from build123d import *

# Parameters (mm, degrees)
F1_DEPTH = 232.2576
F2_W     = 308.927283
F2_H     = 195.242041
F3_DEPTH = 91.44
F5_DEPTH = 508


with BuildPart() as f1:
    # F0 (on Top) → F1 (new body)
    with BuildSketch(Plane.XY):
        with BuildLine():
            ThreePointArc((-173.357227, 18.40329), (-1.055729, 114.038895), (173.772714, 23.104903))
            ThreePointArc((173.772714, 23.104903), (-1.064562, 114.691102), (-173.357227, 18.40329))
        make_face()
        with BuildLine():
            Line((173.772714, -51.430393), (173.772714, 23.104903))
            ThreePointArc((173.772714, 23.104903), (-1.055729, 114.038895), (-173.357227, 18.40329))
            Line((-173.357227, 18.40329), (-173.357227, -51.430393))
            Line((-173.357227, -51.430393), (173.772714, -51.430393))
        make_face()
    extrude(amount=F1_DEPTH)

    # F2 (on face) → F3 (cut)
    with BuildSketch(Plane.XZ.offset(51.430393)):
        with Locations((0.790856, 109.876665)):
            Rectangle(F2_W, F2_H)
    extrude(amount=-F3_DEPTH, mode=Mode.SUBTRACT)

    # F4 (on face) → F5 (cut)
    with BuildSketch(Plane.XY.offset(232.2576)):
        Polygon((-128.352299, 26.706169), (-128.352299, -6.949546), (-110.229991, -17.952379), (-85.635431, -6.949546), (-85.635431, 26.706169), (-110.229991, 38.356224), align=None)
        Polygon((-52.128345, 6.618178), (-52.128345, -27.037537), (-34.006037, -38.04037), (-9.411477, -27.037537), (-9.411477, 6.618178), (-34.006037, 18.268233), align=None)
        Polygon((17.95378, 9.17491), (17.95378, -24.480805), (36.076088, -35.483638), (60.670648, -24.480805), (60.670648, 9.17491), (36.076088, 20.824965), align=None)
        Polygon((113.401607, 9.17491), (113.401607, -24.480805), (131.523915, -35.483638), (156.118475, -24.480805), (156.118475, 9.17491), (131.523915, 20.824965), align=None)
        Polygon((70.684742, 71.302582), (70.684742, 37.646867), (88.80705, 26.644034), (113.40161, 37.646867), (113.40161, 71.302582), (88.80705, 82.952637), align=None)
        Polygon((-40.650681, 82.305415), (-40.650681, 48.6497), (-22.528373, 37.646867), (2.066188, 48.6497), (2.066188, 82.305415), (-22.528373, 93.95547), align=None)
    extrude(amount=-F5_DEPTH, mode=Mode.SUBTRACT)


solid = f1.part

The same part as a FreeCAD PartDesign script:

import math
import FreeCAD as App
import Part
import Sketcher

V = App.Vector
Q = App.Units.Quantity


def add_polygon(sketch, points):
    """Adds a closed chain of lines whose ends are joined by coincident constraints."""
    first, n = sketch.GeometryCount, len(points)
    for a, b in zip(points, points[1:] + points[:1]):
        sketch.addGeometry(Part.LineSegment(App.Vector(*a, 0), App.Vector(*b, 0)), False)
    for i in range(n):
        sketch.addConstraint(Sketcher.Constraint("Coincident", first + i, 2, first + (i + 1) % n, 1))

doc = App.newDocument("Part")
params = doc.addObject("Spreadsheet::Sheet", "Params")
for row, (alias, value) in enumerate([
    ("pad1_length", "9.144 in"),
    ("pocket1_length", "3.6 in"),
    ("pocket2_length", "20 in"),
], start=1):
    params.set(f"A{row}", alias)
    params.set(f"B{row}", "=" + value)
    params.setAlias(f"B{row}", alias)

body = doc.addObject("PartDesign::Body", "Body")

# Sketch on XY plane
sketch1 = body.newObject("Sketcher::SketchObject", "Sketch")
sketch1.AttachmentSupport = (doc.getObject("XY_Plane"), [""])
sketch1.MapMode = "FlatFace"
sketch1.addGeometry([
    Part.ArcOfCircle(Part.Circle(V(2, -93, 0), V(0, 0, 1), 207), math.radians(34), math.radians(148)),
    Part.LineSegment(V(-173, 18, 0), V(-173, -51, 0)),
    Part.LineSegment(V(-173, -51, 0), V(174, -51, 0)),
    Part.LineSegment(V(174, -51, 0), V(174, 23, 0)),
], False)
sketch1.addConstraint([
    Sketcher.Constraint("Coincident", 0, 2, 1, 1),
    Sketcher.Constraint("Coincident", 1, 2, 2, 1),
    Sketcher.Constraint("Coincident", 2, 2, 3, 1),
    Sketcher.Constraint("Coincident", 3, 2, 0, 1),
    Sketcher.Constraint("Vertical", 1),
    Sketcher.Constraint("Horizontal", 2),
    Sketcher.Constraint("Vertical", 3),
    Sketcher.Constraint("Radius", 0, 207.333266),
    Sketcher.Constraint("DistanceX", 2, 1, 2, 2, 347.129941),
    Sketcher.Constraint("DistanceY", 1, 2, 1, 1, 69.833683),
    Sketcher.Constraint("DistanceY", 3, 1, 3, 2, 74.535296),
    Sketcher.Constraint("DistanceY", 0, 3, -1, 1, 92.62315),
    Sketcher.Constraint("DistanceX", -1, 1, 0, 3, 1.743353),
])
pad1 = body.newObject("PartDesign::Pad", "Pad")
pad1.Profile = sketch1
pad1.setExpression("Length", "Params.pad1_length")

# Sketch on XZ plane
sketch2 = body.newObject("Sketcher::SketchObject", "Sketch001")
sketch2.AttachmentSupport = (doc.getObject("XZ_Plane"), [""])
sketch2.MapMode = "FlatFace"
sketch2.AttachmentOffset = App.Placement(V(0, 0, 51.430393), App.Rotation())
add_polygon(sketch2, [(-154, 207), (-154, 12), (155, 12), (155, 207)])  # lines 0-3
sketch2.addConstraint([
    Sketcher.Constraint("Vertical", 0),
    Sketcher.Constraint("Horizontal", 1),
    Sketcher.Constraint("Vertical", 2),
    Sketcher.Constraint("Horizontal", 3),
    Sketcher.Constraint("DistanceY", 0, 2, 0, 1, 195.242041),
    Sketcher.Constraint("DistanceX", 1, 1, 1, 2, 308.927283),
    Sketcher.Constraint("DistanceX", 0, 2, -1, 1, 153.672786),
    Sketcher.Constraint("DistanceY", -1, 1, 0, 2, 12.255645),
])
pocket1 = body.newObject("PartDesign::Pocket", "Pocket")
pocket1.Profile = sketch2
pocket1.setExpression("Length", "Params.pocket1_length")

# Sketch on XY plane
sketch3 = body.newObject("Sketcher::SketchObject", "Sketch002")
sketch3.AttachmentSupport = (doc.getObject("XY_Plane"), [""])
sketch3.MapMode = "FlatFace"
sketch3.AttachmentOffset = App.Placement(V(0, 0, 9.144 * 25.4), App.Rotation())
add_polygon(sketch3, [(-128, 27), (-128, -7), (-110, -18), (-86, -7), (-86, 27), (-110, 38)])  # lines 0-5
add_polygon(sketch3, [(-52, 7), (-52, -27), (-34, -38), (-9, -27), (-9, 7), (-34, 18)])  # lines 6-11
add_polygon(sketch3, [(18, 9), (18, -24), (36, -35), (61, -24), (61, 9), (36, 21)])  # lines 12-17
add_polygon(sketch3, [(113, 9), (113, -24), (132, -35), (156, -24), (156, 9), (132, 21)])  # lines 18-23
add_polygon(sketch3, [(71, 71), (71, 38), (89, 27), (113, 38), (113, 71), (89, 83)])  # lines 24-29
add_polygon(sketch3, [(-41, 82), (-41, 49), (-23, 38), (2, 49), (2, 82), (-23, 94)])  # lines 30-35
sketch3.addConstraint([
    Sketcher.Constraint("Vertical", 0),
    Sketcher.Constraint("Vertical", 3),
    Sketcher.Constraint("Vertical", 6),
    Sketcher.Constraint("Vertical", 9),
    Sketcher.Constraint("Vertical", 12),
    Sketcher.Constraint("Vertical", 15),
    Sketcher.Constraint("Vertical", 18),
    Sketcher.Constraint("Vertical", 21),
    Sketcher.Constraint("Vertical", 24),
    Sketcher.Constraint("Vertical", 27),
    Sketcher.Constraint("Vertical", 30),
    Sketcher.Constraint("Vertical", 33),
    Sketcher.Constraint("Parallel", 1, 7),
    Sketcher.Constraint("Parallel", 2, 8),
    Sketcher.Constraint("Parallel", 4, 10),
    Sketcher.Constraint("Parallel", 5, 11),
    Sketcher.Constraint("Parallel", 7, 13),
    Sketcher.Constraint("Parallel", 8, 14),
    Sketcher.Constraint("Parallel", 10, 16),
    Sketcher.Constraint("Parallel", 11, 17),
    Sketcher.Constraint("Parallel", 13, 19),
    Sketcher.Constraint("Parallel", 14, 20),
    Sketcher.Constraint("Parallel", 16, 22),
    Sketcher.Constraint("Parallel", 17, 23),
    Sketcher.Constraint("Parallel", 19, 25),
    Sketcher.Constraint("Parallel", 20, 26),
    Sketcher.Constraint("Parallel", 22, 28),
    Sketcher.Constraint("Parallel", 23, 29),
    Sketcher.Constraint("Parallel", 25, 31),
    Sketcher.Constraint("Parallel", 26, 32),
    Sketcher.Constraint("Parallel", 28, 34),
    Sketcher.Constraint("Parallel", 29, 35),
    Sketcher.Constraint("Horizontal", 0, 2, 2, 2),
    Sketcher.Constraint("Horizontal", 3, 2, 5, 2),
    Sketcher.Constraint("Horizontal", 6, 2, 8, 2),
    Sketcher.Constraint("Horizontal", 9, 2, 11, 2),
    Sketcher.Constraint("Horizontal", 12, 2, 14, 2),
    Sketcher.Constraint("Horizontal", 15, 2, 17, 2),
    Sketcher.Constraint("Horizontal", 14, 2, 18, 2),
    Sketcher.Constraint("Horizontal", 13, 2, 19, 2),
    Sketcher.Constraint("Horizontal", 18, 2, 20, 2),
    Sketcher.Constraint("Horizontal", 17, 2, 21, 2),
    Sketcher.Constraint("Horizontal", 16, 2, 22, 2),
    Sketcher.Constraint("Horizontal", 24, 2, 26, 2),
    Sketcher.Constraint("Horizontal", 27, 2, 29, 2),
    Sketcher.Constraint("Horizontal", 26, 2, 31, 2),
    Sketcher.Constraint("Horizontal", 30, 2, 32, 2),
    Sketcher.Constraint("Horizontal", 33, 2, 35, 2),
    Sketcher.Constraint("Vertical", 1, 2, 4, 2),
    Sketcher.Constraint("Equal", 3, 6),
    Sketcher.Constraint("Equal", 9, 12),
    Sketcher.Constraint("Equal", 21, 24),
    Sketcher.Constraint("Equal", 27, 30),
    Sketcher.Constraint("Equal", 1, 7),
    Sketcher.Constraint("Equal", 7, 13),
    Sketcher.Constraint("Equal", 19, 25),
    Sketcher.Constraint("Equal", 25, 31),
    Sketcher.Constraint("DistanceX", 30, 2, 10, 2, Q("0.2616002 in")),
    Sketcher.Constraint("DistanceX", 0, 2, -1, 1, 128.352299),
    Sketcher.Constraint("DistanceY", -1, 1, 30, 2, 48.6497),
    Sketcher.Constraint("DistanceY", 13, 2, 8, 2, 8.446101),
    Sketcher.Constraint("DistanceX", 32, 2, 16, 2, 34.0099),
    Sketcher.Constraint("Distance", 5, 21.543951),
    Sketcher.Constraint("DistanceY", 0, 2, 0, 1, 33.655715),
    Sketcher.Constraint("DistanceX", 1, 2, -1, 1, 110.229991),
    Sketcher.Constraint("DistanceY", 1, 2, -1, 1, 17.952379),
    Sketcher.Constraint("DistanceX", 2, 2, -1, 1, 85.635431),
    Sketcher.Constraint("DistanceY", -1, 1, 3, 2, 26.706169),
    Sketcher.Constraint("DistanceY", 7, 2, -1, 1, 38.04037),
    Sketcher.Constraint("DistanceX", -1, 1, 12, 2, 17.95378),
    Sketcher.Constraint("DistanceX", -1, 1, 24, 2, 70.684742),
    Sketcher.Constraint("DistanceX", 14, 2, 18, 2, 52.730959),
])
pocket2 = body.newObject("PartDesign::Pocket", "Pocket001")
pocket2.Profile = sketch3
pocket2.setExpression("Length", "Params.pocket2_length")

doc.recompute()
